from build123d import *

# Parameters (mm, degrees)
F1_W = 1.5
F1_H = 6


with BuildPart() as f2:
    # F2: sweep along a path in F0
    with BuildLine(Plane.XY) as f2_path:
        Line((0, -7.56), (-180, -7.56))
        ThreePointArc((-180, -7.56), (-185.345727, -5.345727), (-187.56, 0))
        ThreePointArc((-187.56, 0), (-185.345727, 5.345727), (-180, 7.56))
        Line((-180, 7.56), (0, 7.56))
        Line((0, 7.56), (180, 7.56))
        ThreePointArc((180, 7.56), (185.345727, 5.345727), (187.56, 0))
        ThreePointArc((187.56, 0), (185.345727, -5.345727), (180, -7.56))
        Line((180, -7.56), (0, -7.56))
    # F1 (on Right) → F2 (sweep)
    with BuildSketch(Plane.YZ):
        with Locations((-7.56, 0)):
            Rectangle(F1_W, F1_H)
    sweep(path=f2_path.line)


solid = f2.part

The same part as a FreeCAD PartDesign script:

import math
import FreeCAD as App
import Part
import Sketcher
from FreeCAD import Vector
Q = App.Units.Quantity


def add_polygon(sketch, points):
    """Adds a closed chain of lines whose ends are joined by coincident constraints."""
    first, n = sketch.GeometryCount, len(points)
    for a, b in zip(points, points[1:] + points[:1]):
        sketch.addGeometry(Part.LineSegment(App.Vector(*a, 0), App.Vector(*b, 0)), False)
    for i in range(n):
        sketch.addConstraint(Sketcher.Constraint("Coincident", first + i, 2, first + (i + 1) % n, 1))

doc = App.newDocument("Part")
body = doc.addObject("PartDesign::Body", "Body")

# Sketch on YZ plane
sketch1 = body.newObject("Sketcher::SketchObject", "Sketch")
sketch1.AttachmentSupport = (doc.getObject("YZ_Plane"), [""])
sketch1.MapMode = "FlatFace"
add_polygon(sketch1, [(-8.3, 3), (-8.3, -3), (-6.8, -3), (-6.8, 3)])  # lines 0-3
sketch1.addConstraint(Sketcher.Constraint("Vertical", 0))
sketch1.addConstraint(Sketcher.Constraint("Horizontal", 1))
sketch1.addConstraint(Sketcher.Constraint("Vertical", 2))
sketch1.addConstraint(Sketcher.Constraint("Horizontal", 3))
sketch1.addConstraint(Sketcher.Constraint("DistanceY", 0, 2, 0, 1, Q("6 mm")))
sketch1.addConstraint(Sketcher.Constraint("DistanceX", 1, 1, 1, 2, Q("1.5 mm")))
sketch1.addConstraint(Sketcher.Constraint("DistanceY", 0, 2, -1, 1, Q("3 mm")))
sketch1.addConstraint(Sketcher.Constraint("DistanceX", 0, 2, -1, 1, Q("8.31 mm")))

# Sketch on XY plane
sketch2 = body.newObject("Sketcher::SketchObject", "Sketch001")
sketch2.AttachmentSupport = (doc.getObject("XY_Plane"), [""])
sketch2.MapMode = "FlatFace"
sketch2.addGeometry(Part.ArcOfCircle(Part.Circle(Vector(-180, 0, 0), Vector(0, 0, 1), 8), math.radians(-180), math.radians(-90)), False)
sketch2.addGeometry(Part.ArcOfCircle(Part.Circle(Vector(-180, 0, 0), Vector(0, 0, 1), 8), math.radians(90), math.radians(180)), False)
sketch2.addGeometry(Part.LineSegment(Vector(-180, 8, 0), Vector(180, 8, 0)), False)
sketch2.addGeometry(Part.ArcOfCircle(Part.Circle(Vector(180, 0, 0), Vector(0, 0, 1), 8), math.radians(0), math.radians(90)), False)
sketch2.addGeometry(Part.ArcOfCircle(Part.Circle(Vector(180, 0, 0), Vector(0, 0, 1), 8), math.radians(-90), math.radians(0)), False)
sketch2.addGeometry(Part.LineSegment(Vector(180, -8, 0), Vector(-180, -8, 0)), False)
sketch2.addConstraint(Sketcher.Constraint("Tangent", 0, 1, 1, 2))
sketch2.addConstraint(Sketcher.Constraint("Tangent", 1, 1, 2, 1))
sketch2.addConstraint(Sketcher.Constraint("Tangent", 2, 2, 3, 2))
sketch2.addConstraint(Sketcher.Constraint("Tangent", 3, 1, 4, 2))
sketch2.addConstraint(Sketcher.Constraint("Tangent", 4, 1, 5, 1))
sketch2.addConstraint(Sketcher.Constraint("Tangent", 5, 2, 0, 2))
sketch2.addConstraint(Sketcher.Constraint("Horizontal", 2))
sketch2.addConstraint(Sketcher.Constraint("Horizontal", 5))
sketch2.addConstraint(Sketcher.Constraint("Equal", 0, 1))
sketch2.addConstraint(Sketcher.Constraint("Equal", 1, 3))
sketch2.addConstraint(Sketcher.Constraint("Symmetric", 0, 3, 3, 3, -1, 1))
sketch2.addConstraint(Sketcher.Constraint("PointOnObject", 0, 1, -1))
sketch2.addConstraint(Sketcher.Constraint("PointOnObject", 3, 1, -1))
sketch2.addConstraint(Sketcher.Constraint("DistanceX", 2, 1, 2, 2, Q("360 mm")))
sketch2.addConstraint(Sketcher.Constraint("Radius", 0, Q("7.560001 mm")))
doc.recompute()

additivepipe = body.newObject("PartDesign::AdditivePipe", "AdditivePipe")
additivepipe.Profile = sketch1
additivepipe.Spine = (sketch2, ["Edge1", "Edge2", "Edge3", "Edge4", "Edge5", "Edge6"])

doc.recompute()
